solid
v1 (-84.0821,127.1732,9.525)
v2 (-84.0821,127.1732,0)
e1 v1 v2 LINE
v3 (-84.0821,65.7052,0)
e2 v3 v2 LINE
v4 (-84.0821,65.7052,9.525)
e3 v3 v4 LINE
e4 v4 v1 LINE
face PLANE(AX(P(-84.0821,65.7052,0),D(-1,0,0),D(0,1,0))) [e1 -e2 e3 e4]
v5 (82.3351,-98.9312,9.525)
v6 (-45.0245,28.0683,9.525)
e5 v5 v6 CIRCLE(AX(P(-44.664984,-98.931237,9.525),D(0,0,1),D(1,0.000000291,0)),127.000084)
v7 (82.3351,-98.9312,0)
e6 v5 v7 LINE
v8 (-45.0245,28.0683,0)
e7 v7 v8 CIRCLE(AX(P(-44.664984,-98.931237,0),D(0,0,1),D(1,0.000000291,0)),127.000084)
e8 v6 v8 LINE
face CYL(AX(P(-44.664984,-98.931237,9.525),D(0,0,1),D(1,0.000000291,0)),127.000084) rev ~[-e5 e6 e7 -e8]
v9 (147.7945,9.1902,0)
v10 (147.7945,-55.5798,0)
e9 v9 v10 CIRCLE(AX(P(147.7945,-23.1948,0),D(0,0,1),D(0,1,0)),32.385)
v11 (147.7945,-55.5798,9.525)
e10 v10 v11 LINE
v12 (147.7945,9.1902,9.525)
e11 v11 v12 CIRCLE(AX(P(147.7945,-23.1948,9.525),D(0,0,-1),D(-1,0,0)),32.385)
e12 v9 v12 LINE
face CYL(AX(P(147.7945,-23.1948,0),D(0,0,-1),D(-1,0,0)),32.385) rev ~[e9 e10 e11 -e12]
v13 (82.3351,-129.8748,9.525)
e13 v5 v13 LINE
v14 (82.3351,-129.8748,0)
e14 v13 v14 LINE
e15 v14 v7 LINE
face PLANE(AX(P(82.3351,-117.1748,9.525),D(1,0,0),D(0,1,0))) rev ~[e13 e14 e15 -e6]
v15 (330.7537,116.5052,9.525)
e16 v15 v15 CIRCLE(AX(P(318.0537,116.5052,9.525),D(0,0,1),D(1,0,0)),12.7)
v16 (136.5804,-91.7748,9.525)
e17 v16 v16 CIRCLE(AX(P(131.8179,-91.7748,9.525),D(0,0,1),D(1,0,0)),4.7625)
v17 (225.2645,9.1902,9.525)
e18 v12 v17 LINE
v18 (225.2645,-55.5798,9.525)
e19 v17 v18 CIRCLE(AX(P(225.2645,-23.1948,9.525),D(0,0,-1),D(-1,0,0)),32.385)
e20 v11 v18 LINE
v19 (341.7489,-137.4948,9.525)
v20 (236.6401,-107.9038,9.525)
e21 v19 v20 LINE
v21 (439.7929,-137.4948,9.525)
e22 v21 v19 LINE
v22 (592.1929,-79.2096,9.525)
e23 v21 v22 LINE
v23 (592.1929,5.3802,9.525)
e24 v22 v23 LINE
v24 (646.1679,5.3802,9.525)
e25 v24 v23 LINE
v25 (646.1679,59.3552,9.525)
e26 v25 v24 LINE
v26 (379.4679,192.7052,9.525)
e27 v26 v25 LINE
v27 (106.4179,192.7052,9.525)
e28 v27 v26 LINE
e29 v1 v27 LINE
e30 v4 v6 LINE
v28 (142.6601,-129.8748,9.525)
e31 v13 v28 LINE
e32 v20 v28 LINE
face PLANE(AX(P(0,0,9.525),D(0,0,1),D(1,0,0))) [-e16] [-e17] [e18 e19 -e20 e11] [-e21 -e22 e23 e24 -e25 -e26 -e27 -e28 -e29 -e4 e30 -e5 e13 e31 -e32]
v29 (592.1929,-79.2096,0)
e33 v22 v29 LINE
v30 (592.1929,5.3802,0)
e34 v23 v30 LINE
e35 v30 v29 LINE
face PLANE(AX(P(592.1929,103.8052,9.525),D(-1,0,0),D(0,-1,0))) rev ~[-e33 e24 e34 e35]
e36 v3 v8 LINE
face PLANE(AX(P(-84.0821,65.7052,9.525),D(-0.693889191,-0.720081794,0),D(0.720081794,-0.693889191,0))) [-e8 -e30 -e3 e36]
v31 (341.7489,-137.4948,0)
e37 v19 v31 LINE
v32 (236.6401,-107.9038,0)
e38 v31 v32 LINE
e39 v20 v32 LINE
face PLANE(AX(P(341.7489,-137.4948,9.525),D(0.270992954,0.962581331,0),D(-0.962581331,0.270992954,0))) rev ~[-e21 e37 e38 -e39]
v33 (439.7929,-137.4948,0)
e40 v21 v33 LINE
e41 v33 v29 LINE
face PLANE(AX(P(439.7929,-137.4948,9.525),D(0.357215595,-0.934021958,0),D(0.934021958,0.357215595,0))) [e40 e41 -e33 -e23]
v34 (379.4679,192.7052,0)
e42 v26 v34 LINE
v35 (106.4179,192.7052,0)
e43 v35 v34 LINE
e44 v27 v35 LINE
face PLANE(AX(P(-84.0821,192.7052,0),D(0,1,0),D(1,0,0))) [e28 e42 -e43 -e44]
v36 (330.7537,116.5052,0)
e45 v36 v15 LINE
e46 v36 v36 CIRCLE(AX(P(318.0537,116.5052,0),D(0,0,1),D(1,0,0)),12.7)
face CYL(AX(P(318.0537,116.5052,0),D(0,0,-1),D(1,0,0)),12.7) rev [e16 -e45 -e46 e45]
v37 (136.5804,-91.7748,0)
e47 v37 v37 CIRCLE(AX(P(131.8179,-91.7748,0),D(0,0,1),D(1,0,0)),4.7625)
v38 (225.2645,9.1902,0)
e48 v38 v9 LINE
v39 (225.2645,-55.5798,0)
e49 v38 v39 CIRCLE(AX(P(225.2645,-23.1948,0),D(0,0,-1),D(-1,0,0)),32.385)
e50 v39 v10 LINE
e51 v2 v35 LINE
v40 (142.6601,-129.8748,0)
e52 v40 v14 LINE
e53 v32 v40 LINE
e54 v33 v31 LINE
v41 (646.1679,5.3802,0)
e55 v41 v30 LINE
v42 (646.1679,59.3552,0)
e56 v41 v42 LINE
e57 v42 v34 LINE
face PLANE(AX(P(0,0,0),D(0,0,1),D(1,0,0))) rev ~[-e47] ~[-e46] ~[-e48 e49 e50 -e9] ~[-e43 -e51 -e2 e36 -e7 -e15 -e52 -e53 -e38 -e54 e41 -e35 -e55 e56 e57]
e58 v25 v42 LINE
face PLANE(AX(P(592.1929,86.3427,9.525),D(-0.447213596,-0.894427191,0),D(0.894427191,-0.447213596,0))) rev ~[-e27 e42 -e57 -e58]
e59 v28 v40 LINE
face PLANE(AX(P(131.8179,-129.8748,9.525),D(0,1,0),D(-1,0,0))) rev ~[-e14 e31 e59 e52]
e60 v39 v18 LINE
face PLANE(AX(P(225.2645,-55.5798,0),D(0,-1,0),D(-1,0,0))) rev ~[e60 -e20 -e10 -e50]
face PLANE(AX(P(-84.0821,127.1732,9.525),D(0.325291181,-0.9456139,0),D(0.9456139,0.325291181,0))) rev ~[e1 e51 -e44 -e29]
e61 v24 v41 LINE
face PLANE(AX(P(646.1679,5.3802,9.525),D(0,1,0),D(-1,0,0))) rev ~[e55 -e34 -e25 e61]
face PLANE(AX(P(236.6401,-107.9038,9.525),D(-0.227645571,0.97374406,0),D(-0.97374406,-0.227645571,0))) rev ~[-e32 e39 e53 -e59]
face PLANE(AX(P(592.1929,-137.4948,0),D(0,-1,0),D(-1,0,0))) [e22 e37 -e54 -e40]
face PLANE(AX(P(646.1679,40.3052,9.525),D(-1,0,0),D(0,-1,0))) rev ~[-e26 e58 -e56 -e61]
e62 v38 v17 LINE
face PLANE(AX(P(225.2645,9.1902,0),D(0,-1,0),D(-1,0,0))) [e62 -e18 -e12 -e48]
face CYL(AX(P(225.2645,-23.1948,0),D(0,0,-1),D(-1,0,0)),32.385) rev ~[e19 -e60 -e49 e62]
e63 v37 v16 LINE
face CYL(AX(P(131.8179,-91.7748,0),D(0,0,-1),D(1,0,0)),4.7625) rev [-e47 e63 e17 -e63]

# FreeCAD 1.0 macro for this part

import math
import FreeCAD as App
import Part
import Sketcher
from FreeCAD import Vector
Q = App.Units.Quantity


def add_polygon(sketch, points):
    """Adds a closed chain of lines whose ends are joined by coincident constraints."""
    first, n = sketch.GeometryCount, len(points)
    for a, b in zip(points, points[1:] + points[:1]):
        sketch.addGeometry(Part.LineSegment(App.Vector(*a, 0), App.Vector(*b, 0)), False)
    for i in range(n):
        sketch.addConstraint(Sketcher.Constraint("Coincident", first + i, 2, first + (i + 1) % n, 1))

doc = App.newDocument("Part")
body = doc.addObject("PartDesign::Body", "Body")

sketch1 = body.newObject("Sketcher::SketchObject", "Sketch")
sketch1.AttachmentSupport = (doc.getObject("XY_Plane"), [""])
sketch1.MapMode = "FlatFace"
add_polygon(sketch1, [(595.4, 192.7), (-84.1, 192.7), (-84.1, 65.7), (68.3, -137.5), (592.2, -137.5), (592.2, -74), (643, -74), (643, 2.2), (595.4, 2.2)])
sketch1.addGeometry(Part.Circle(Vector(131.8, -91.8, 0), Vector(0, 0, 1), 4.8), False)
sketch1.addGeometry(Part.Circle(Vector(318.1, 116.5, 0), Vector(0, 0, 1), 12.7), False)
sketch1.addConstraint(Sketcher.Constraint("Horizontal", 0))
sketch1.addConstraint(Sketcher.Constraint("Vertical", 1))
sketch1.addConstraint(Sketcher.Constraint("Horizontal", 3))
sketch1.addConstraint(Sketcher.Constraint("Vertical", 4))
sketch1.addConstraint(Sketcher.Constraint("Horizontal", 5))
sketch1.addConstraint(Sketcher.Constraint("Vertical", 6))
sketch1.addConstraint(Sketcher.Constraint("Horizontal", 7))
sketch1.addConstraint(Sketcher.Constraint("Vertical", 8))
sketch1.addConstraint(Sketcher.Constraint("Diameter", 10, Q("1 in")))
sketch1.addConstraint(Sketcher.Constraint("DistanceX", 5, 1, 5, 2, Q("2 in")))
sketch1.addConstraint(Sketcher.Constraint("Distance", 2, Q("10 in")))
sketch1.addConstraint(Sketcher.Constraint("Diameter", 9, Q("0.375 in")))
sketch1.addConstraint(Sketcher.Constraint("DistanceY", 4, 1, 4, 2, Q("2.5 in")))
sketch1.addConstraint(Sketcher.Constraint("DistanceY", 1, 2, 10, 3, Q("2 in")))
sketch1.addConstraint(Sketcher.Constraint("DistanceX", 1, 2, 2, 2, Q("6 in")))
sketch1.addConstraint(Sketcher.Constraint("DistanceY", 2, 2, 0, 2, Q("13 in")))
sketch1.addConstraint(Sketcher.Constraint("DistanceX", 0, 2, 9, 3, Q("8.5 in")))
sketch1.addConstraint(Sketcher.Constraint("DistanceY", 2, 2, 9, 3, Q("1.8 in")))
sketch1.addConstraint(Sketcher.Constraint("DistanceY", 3, 2, 6, 2, Q("5.5 in")))
sketch1.addConstraint(Sketcher.Constraint("DistanceX", 0, 2, 0, 1, Q("26.75 in")))
sketch1.addConstraint(Sketcher.Constraint("DistanceX", 3, 1, 3, 2, Q("20.625 in")))
sketch1.addConstraint(Sketcher.Constraint("DistanceX", -1, 1, 10, 3, Q("12.5218 in")))
sketch1.addConstraint(Sketcher.Constraint("DistanceX", -1, 1, 9, 3, Q("131.818 mm")))
sketch1.addConstraint(Sketcher.Constraint("DistanceY", 9, 3, -1, 1, Q("91.7748 mm")))
pad1 = body.newObject("PartDesign::Pad", "Pad")
pad1.Profile = sketch1
pad1.Length = Q("0.375 in")

sketch2 = body.newObject("Sketcher::SketchObject", "Sketch001")
sketch2.AttachmentSupport = (doc.getObject("XY_Plane"), [""])
sketch2.MapMode = "FlatFace"
sketch2.AttachmentOffset = App.Placement(Vector(0, 0, 0.375 * 25.4), App.Rotation())
add_polygon(sketch2, [(379, 193), (595, 85), (595, 193)])
add_polygon(sketch2, [(-84, 127), (106, 193), (-84, 193)])
sketch2.addConstraint(Sketcher.Constraint("Vertical", 1))
sketch2.addConstraint(Sketcher.Constraint("Horizontal", 2))
sketch2.addConstraint(Sketcher.Constraint("Horizontal", 4))
sketch2.addConstraint(Sketcher.Constraint("Vertical", 5))
sketch2.addConstraint(Sketcher.Constraint("Horizontal", 2, 2, 3, 2))
sketch2.addConstraint(Sketcher.Constraint("DistanceX", 4, 2, 4, 1, Q("7.5 in")))
sketch2.addConstraint(Sketcher.Constraint("DistanceX", 2, 2, 2, 1, Q("8.5 in")))
sketch2.addConstraint(Sketcher.Constraint("DistanceY", 1, 1, 1, 2, Q("4.25 in")))
sketch2.addConstraint(Sketcher.Constraint("DistanceY", 5, 2, 5, 1, Q("2.58 in")))
sketch2.addConstraint(Sketcher.Constraint("DistanceX", 3, 2, 2, 2, Q("10.75 in")))
sketch2.addConstraint(Sketcher.Constraint("DistanceX", -1, 1, 0, 2, Q("595.368 mm")))
sketch2.addConstraint(Sketcher.Constraint("DistanceY", -1, 1, 0, 2, Q("84.7552 mm")))
pocket1 = body.newObject("PartDesign::Pocket", "Pocket")
pocket1.Profile = sketch2
pocket1.Length = Q("1 in")

sketch3 = body.newObject("Sketcher::SketchObject", "Sketch002")
sketch3.AttachmentSupport = (doc.getObject("XY_Plane"), [""])
sketch3.MapMode = "FlatFace"
sketch3.AttachmentOffset = App.Placement(Vector(0, 0, 0.375 * 25.4), App.Rotation())
add_polygon(sketch3, [(592, 104), (592, -137), (740, -137), (740, 104)])
sketch3.addConstraint(Sketcher.Constraint("Vertical", 0))
sketch3.addConstraint(Sketcher.Constraint("Horizontal", 1))
sketch3.addConstraint(Sketcher.Constraint("Vertical", 2))
sketch3.addConstraint(Sketcher.Constraint("Horizontal", 3))
sketch3.addConstraint(Sketcher.Constraint("DistanceY", 0, 2, 0, 1, Q("9.5 in")))
sketch3.addConstraint(Sketcher.Constraint("DistanceX", 1, 1, 1, 2, Q("148.0503 mm")))
sketch3.addConstraint(Sketcher.Constraint("DistanceX", -1, 1, 0, 2, Q("592.193 mm")))
sketch3.addConstraint(Sketcher.Constraint("DistanceY", 0, 2, -1, 1, Q("137.4948 mm")))
pocket2 = body.newObject("PartDesign::Pocket", "Pocket001")
pocket2.Profile = sketch3
pocket2.Length = Q("1 in")

sketch4 = body.newObject("Sketcher::SketchObject", "Sketch003")
sketch4.AttachmentSupport = (doc.getObject("XY_Plane"), [""])
sketch4.MapMode = "FlatFace"
sketch4.AttachmentOffset = App.Placement(Vector(0, 0, 0.375 * 25.4), App.Rotation())
add_polygon(sketch4, [(592, 86), (592, 40), (646, 40), (646, 59)])
sketch4.addConstraint(Sketcher.Constraint("Vertical", 0))
sketch4.addConstraint(Sketcher.Constraint("Horizontal", 1))
sketch4.addConstraint(Sketcher.Constraint("Vertical", 2))
sketch4.addConstraint(Sketcher.Constraint("DistanceY", 2, 1, 2, 2, Q("0.75 in")))
sketch4.addConstraint(Sketcher.Constraint("DistanceX", 1, 1, 1, 2, Q("2.125 in")))
sketch4.addConstraint(Sketcher.Constraint("DistanceY", 0, 2, 0, 1, Q("1.8125 in")))
sketch4.addConstraint(Sketcher.Constraint("DistanceX", -1, 1, 0, 2, Q("592.193 mm")))
sketch4.addConstraint(Sketcher.Constraint("DistanceY", -1, 1, 0, 2, Q("40.3052 mm")))
pad2 = body.newObject("PartDesign::Pad", "Pad001")
pad2.Profile = sketch4
pad2.Length = Q("0.375 in")
pad2.Reversed = True

sketch5 = body.newObject("Sketcher::SketchObject", "Sketch004")
sketch5.AttachmentSupport = (doc.getObject("XY_Plane"), [""])
sketch5.MapMode = "FlatFace"
sketch5.AttachmentOffset = App.Placement(Vector(0, 0, 0.375 * 25.4), App.Rotation())
add_polygon(sketch5, [(646, 40), (592, 40), (592, 5), (646, 5)])
sketch5.addConstraint(Sketcher.Constraint("Horizontal", 0))
sketch5.addConstraint(Sketcher.Constraint("Vertical", 1))
sketch5.addConstraint(Sketcher.Constraint("Horizontal", 2))
sketch5.addConstraint(Sketcher.Constraint("Vertical", 3))
sketch5.addConstraint(Sketcher.Constraint("DistanceY", 1, 2, 1, 1, Q("1.375 in")))
sketch5.addConstraint(Sketcher.Constraint("DistanceX", 0, 2, 0, 1, Q("2.125 in")))
sketch5.addConstraint(Sketcher.Constraint("DistanceX", -1, 1, 0, 2, Q("592.193 mm")))
sketch5.addConstraint(Sketcher.Constraint("DistanceY", -1, 1, 0, 2, Q("40.3052 mm")))
pad3 = body.newObject("PartDesign::Pad", "Pad002")
pad3.Profile = sketch5
pad3.Length = Q("0.375 in")
pad3.Reversed = True

sketch6 = body.newObject("Sketcher::SketchObject", "Sketch005")
sketch6.AttachmentSupport = (doc.getObject("XY_Plane"), [""])
sketch6.MapMode = "FlatFace"
sketch6.AttachmentOffset = App.Placement(Vector(0, 0, 0.375 * 25.4), App.Rotation())
add_polygon(sketch6, [(170, -117), (53, -117), (68, -137), (342, -137)])
add_polygon(sketch6, [(592, -97), (440, -137), (592, -137)])
sketch6.addConstraint(Sketcher.Constraint("Horizontal", 0))
sketch6.addConstraint(Sketcher.Constraint("Horizontal", 2))
sketch6.addConstraint(Sketcher.Constraint("Horizontal", 5))
sketch6.addConstraint(Sketcher.Constraint("Vertical", 6))
sketch6.addConstraint(Sketcher.Constraint("Horizontal", 2, 2, 4, 2))
sketch6.addConstraint(Sketcher.Constraint("DistanceX", 5, 1, 5, 2, Q("6 in")))
sketch6.addConstraint(Sketcher.Constraint("Angle", 4, Q("-165 deg")))
sketch6.addConstraint(Sketcher.Constraint("DistanceY", 1, 2, 0, 2, Q("0.8 in")))
sketch6.addConstraint(Sketcher.Constraint("Angle", 3, Q("173.2405 deg")))
sketch6.addConstraint(Sketcher.Constraint("DistanceX", 2, 2, 4, 2, Q("3.86 in")))
sketch6.addConstraint(Sketcher.Constraint("Distance", 1, Q("1 in")))
sketch6.addConstraint(Sketcher.Constraint("DistanceX", 2, 1, 2, 2, Q("10.765 in")))
sketch6.addConstraint(Sketcher.Constraint("DistanceY", 6, 2, -1, 1, Q("3.8055 in")))
sketch6.addConstraint(Sketcher.Constraint("DistanceX", -1, 1, 0, 2, Q("53.078 mm")))
pocket3 = body.newObject("PartDesign::Pocket", "Pocket002")
pocket3.Profile = sketch6
pocket3.Length = Q("1 in")

sketch7 = body.newObject("Sketcher::SketchObject", "Sketch006")
sketch7.AttachmentSupport = (doc.getObject("XY_Plane"), [""])
sketch7.MapMode = "FlatFace"
sketch7.addGeometry(Part.ArcOfCircle(Part.Circle(Vector(148, -23, 0), Vector(0, 0, 1), 32), math.radians(90), math.radians(270)), False)
sketch7.addGeometry(Part.LineSegment(Vector(148, 9, 0), Vector(225, 9, 0)), False)
sketch7.addGeometry(Part.ArcOfCircle(Part.Circle(Vector(225, -23, 0), Vector(0, 0, 1), 32), math.radians(-90), math.radians(90)), False)
sketch7.addGeometry(Part.LineSegment(Vector(225, -56, 0), Vector(148, -56, 0)), False)
sketch7.addConstraint(Sketcher.Constraint("Tangent", 0, 1, 1, 1))
sketch7.addConstraint(Sketcher.Constraint("Tangent", 1, 2, 2, 2))
sketch7.addConstraint(Sketcher.Constraint("Tangent", 2, 1, 3, 1))
sketch7.addConstraint(Sketcher.Constraint("Tangent", 3, 2, 0, 2))
sketch7.addConstraint(Sketcher.Constraint("Horizontal", 1))
sketch7.addConstraint(Sketcher.Constraint("Horizontal", 3))
sketch7.addConstraint(Sketcher.Constraint("Radius", 0, Q("1.275 in")))
sketch7.addConstraint(Sketcher.Constraint("DistanceX", 1, 1, 1, 2, Q("3.05 in")))
sketch7.addConstraint(Sketcher.Constraint("DistanceX", -1, 1, 0, 3, Q("147.7945 mm")))
sketch7.addConstraint(Sketcher.Constraint("DistanceY", 0, 3, -1, 1, Q("23.1948 mm")))
pocket4 = body.newObject("PartDesign::Pocket", "Pocket003")
pocket4.Profile = sketch7
pocket4.Length = Q("1 in")
pocket4.Reversed = True

sketch8 = body.newObject("Sketcher::SketchObject", "Sketch007")
sketch8.AttachmentSupport = (doc.getObject("XY_Plane"), [""])
sketch8.MapMode = "FlatFace"
sketch8.AttachmentOffset = App.Placement(Vector(0, 0, 0.375 * 25.4), App.Rotation())
sketch8.addGeometry(Part.ArcOfCircle(Part.Circle(Vector(-45, -99, 0), Vector(0, 0, 1), 127), math.radians(0), math.radians(95)), False)
sketch8.addGeometry(Part.LineSegment(Vector(-56, 28, 0), Vector(53, -117, 0)), False)
sketch8.addGeometry(Part.LineSegment(Vector(53, -117, 0), Vector(82, -117, 0)), False)
sketch8.addGeometry(Part.LineSegment(Vector(82, -117, 0), Vector(82, -99, 0)), False)
sketch8.addConstraint(Sketcher.Constraint("Coincident", 0, 2, 1, 1))
sketch8.addConstraint(Sketcher.Constraint("Coincident", 1, 2, 2, 1))
sketch8.addConstraint(Sketcher.Constraint("Coincident", 2, 2, 3, 1))
sketch8.addConstraint(Sketcher.Constraint("Tangent", 3, 2, 0, 1))
sketch8.addConstraint(Sketcher.Constraint("Horizontal", 2))
sketch8.addConstraint(Sketcher.Constraint("Vertical", 3))
sketch8.addConstraint(Sketcher.Constraint("Radius", 0, Q("5 in")))
sketch8.addConstraint(Sketcher.Constraint("DistanceY", 1, 2, 0, 2, Q("5.7 in")))
sketch8.addConstraint(Sketcher.Constraint("Angle", 1, Q("-53.13 deg")))
sketch8.addConstraint(Sketcher.Constraint("DistanceX", 2, 1, 2, 2, Q("29.2572 mm")))
sketch8.addConstraint(Sketcher.Constraint("DistanceX", 0, 3, -1, 1, Q("44.665 mm")))
sketch8.addConstraint(Sketcher.Constraint("DistanceY", 0, 3, -1, 1, Q("98.9312 mm")))
pocket5 = body.newObject("PartDesign::Pocket", "Pocket004")
pocket5.Profile = sketch8
pocket5.Length = Q("1 in")

sketch9 = body.newObject("Sketcher::SketchObject", "Sketch008")
sketch9.AttachmentSupport = (doc.getObject("XY_Plane"), [""])
sketch9.MapMode = "FlatFace"
sketch9.AttachmentOffset = App.Placement(Vector(0, 0, 0.375 * 25.4), App.Rotation())
add_polygon(sketch9, [(592, -79), (440, -137), (592, -97)])
sketch9.addConstraint(Sketcher.Constraint("Vertical", 2))
sketch9.addConstraint(Sketcher.Constraint("DistanceY", 2, 1, 2, 2, Q("0.687 in")))
sketch9.addConstraint(Sketcher.Constraint("Angle", 1, Q("15 deg")))
sketch9.addConstraint(Sketcher.Constraint("DistanceX", 0, 2, 1, 2, Q("6 in")))
sketch9.addConstraint(Sketcher.Constraint("DistanceY", 1, 2, -1, 1, Q("3.8055 in")))
sketch9.addConstraint(Sketcher.Constraint("DistanceX", -1, 1, 0, 2, Q("439.793 mm")))
pocket6 = body.newObject("PartDesign::Pocket", "Pocket005")
pocket6.Profile = sketch9
pocket6.Length = Q("0.375 in")

sketch10 = body.newObject("Sketcher::SketchObject", "Sketch009")
sketch10.AttachmentSupport = (doc.getObject("XY_Plane"), [""])
sketch10.MapMode = "FlatFace"
sketch10.AttachmentOffset = App.Placement(Vector(0, 0, 0.375 * 25.4), App.Rotation())
add_polygon(sketch10, [(82, -117), (82, -130), (277, -130), (170, -117)])
sketch10.addConstraint(Sketcher.Constraint("Vertical", 0))
sketch10.addConstraint(Sketcher.Constraint("Horizontal", 1))
sketch10.addConstraint(Sketcher.Constraint("Horizontal", 3))
sketch10.addConstraint(Sketcher.Constraint("DistanceY", 0, 2, 0, 1, Q("0.5 in")))
sketch10.addConstraint(Sketcher.Constraint("Angle", 2, Q("173.2405 deg")))
sketch10.addConstraint(Sketcher.Constraint("DistanceX", 3, 2, 3, 1, Q("3.4636 in")))
sketch10.addConstraint(Sketcher.Constraint("DistanceX", -1, 1, 1, 2, Q("10.9236 in")))
sketch10.addConstraint(Sketcher.Constraint("DistanceY", 0, 2, -1, 1, Q("129.8748 mm")))
pad4 = body.newObject("PartDesign::Pad", "Pad003")
pad4.Profile = sketch10
pad4.Length = Q("0.375 in")
pad4.Reversed = True

sketch11 = body.newObject("Sketcher::SketchObject", "Sketch010")
sketch11.AttachmentSupport = (doc.getObject("XY_Plane"), [""])
sketch11.MapMode = "FlatFace"
sketch11.AttachmentOffset = App.Placement(Vector(0, 0, 0.375 * 25.4), App.Rotation())
add_polygon(sketch11, [(237, -108), (143, -130), (277, -130), (342, -137)])
sketch11.addConstraint(Sketcher.Constraint("Horizontal", 1))
sketch11.addConstraint(Sketcher.Constraint("DistanceY", 1, 2, 3, 2, Q("0.865 in")))
sketch11.addConstraint(Sketcher.Constraint("DistanceY", 2, 2, 1, 2, Q("0.3 in")))
sketch11.addConstraint(Sketcher.Constraint("DistanceX", 0, 2, 3, 2, Q("3.7 in")))
sketch11.addConstraint(Sketcher.Constraint("Angle", 2, Q("-6.7595 deg")))
sketch11.addConstraint(Sketcher.Constraint("Distance", 3, Q("4.299 in")))
sketch11.addConstraint(Sketcher.Constraint("DistanceX", -1, 1, 1, 2, Q("10.9236 in")))
sketch11.addConstraint(Sketcher.Constraint("DistanceY", 0, 2, -1, 1, Q("129.8748 mm")))
pocket7 = body.newObject("PartDesign::Pocket", "Pocket006")
pocket7.Profile = sketch11
pocket7.Length = Q("0.375 in")

sketch12 = body.newObject("Sketcher::SketchObject", "Sketch011")
sketch12.AttachmentSupport = (doc.getObject("XY_Plane"), [""])
sketch12.MapMode = "FlatFace"
sketch12.AttachmentOffset = App.Placement(Vector(0, 0, 0.375 * 25.4), App.Rotation())
sketch12.addGeometry(Part.LineSegment(Vector(-45, 28, 0), Vector(-84, 66, 0)), False)
sketch12.addGeometry(Part.LineSegment(Vector(-84, 66, 0), Vector(-56, 28, 0)), False)
sketch12.addGeometry(Part.ArcOfCircle(Part.Circle(Vector(-45, -99, 0), Vector(0, 0, 1), 127), math.radians(90.16), math.radians(94.9)), False)
sketch12.addConstraint(Sketcher.Constraint("Coincident", 0, 2, 1, 1))
sketch12.addConstraint(Sketcher.Constraint("Coincident", 1, 2, 2, 2))
sketch12.addConstraint(Sketcher.Constraint("Coincident", 2, 1, 0, 1))
sketch12.addConstraint(Sketcher.Constraint("Radius", 2, Q("5 in")))
sketch12.addConstraint(Sketcher.Constraint("DistanceY", 1, 2, 0, 2, Q("1.5 in")))
sketch12.addConstraint(Sketcher.Constraint("Angle", 1, Q("-53.13 deg")))
sketch12.addConstraint(Sketcher.Constraint("DistanceX", 1, 2, 2, 1, Q("0.4127 in")))
sketch12.addConstraint(Sketcher.Constraint("Distance", 0, Q("54.2405 mm")))
sketch12.addConstraint(Sketcher.Constraint("DistanceX", 2, 3, -1, 1, Q("44.665 mm")))
sketch12.addConstraint(Sketcher.Constraint("DistanceY", 2, 3, -1, 1, Q("98.9312 mm")))
pocket8 = body.newObject("PartDesign::Pocket", "Pocket007")
pocket8.Profile = sketch12
pocket8.Length = Q("0.375 in")

doc.recompute()
